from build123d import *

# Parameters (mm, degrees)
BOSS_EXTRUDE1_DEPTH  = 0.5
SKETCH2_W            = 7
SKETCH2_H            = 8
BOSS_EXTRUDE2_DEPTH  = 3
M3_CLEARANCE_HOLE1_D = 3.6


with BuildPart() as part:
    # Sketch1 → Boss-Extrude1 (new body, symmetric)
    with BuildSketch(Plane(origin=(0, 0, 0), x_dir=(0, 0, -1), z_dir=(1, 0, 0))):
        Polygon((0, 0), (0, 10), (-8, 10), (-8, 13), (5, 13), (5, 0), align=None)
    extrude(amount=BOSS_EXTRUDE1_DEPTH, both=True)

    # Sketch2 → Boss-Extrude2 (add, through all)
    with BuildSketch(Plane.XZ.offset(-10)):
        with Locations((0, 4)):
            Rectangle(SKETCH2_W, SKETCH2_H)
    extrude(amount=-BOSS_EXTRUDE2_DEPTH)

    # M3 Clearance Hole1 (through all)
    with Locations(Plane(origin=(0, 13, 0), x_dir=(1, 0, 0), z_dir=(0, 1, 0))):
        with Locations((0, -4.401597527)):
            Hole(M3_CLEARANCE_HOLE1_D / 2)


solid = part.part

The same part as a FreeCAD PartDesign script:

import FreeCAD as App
import Part
import Sketcher

V = App.Vector


def add_polygon(sketch, points):
    """Adds a closed chain of lines whose ends are joined by coincident constraints."""
    first, n = sketch.GeometryCount, len(points)
    for a, b in zip(points, points[1:] + points[:1]):
        sketch.addGeometry(Part.LineSegment(App.Vector(*a, 0), App.Vector(*b, 0)), False)
    for i in range(n):
        sketch.addConstraint(Sketcher.Constraint("Coincident", first + i, 2, first + (i + 1) % n, 1))

doc = App.newDocument("Part")
body = doc.addObject("PartDesign::Body", "Body")

# Sketch on YZ plane
sketch1 = body.newObject("Sketcher::SketchObject", "Sketch")
sketch1.AttachmentSupport = (doc.getObject("YZ_Plane"), [""])
sketch1.MapMode = "FlatFace"
add_polygon(sketch1, [(10, 0), (0, 0), (0, -5), (13, -5), (13, 8), (10, 8)])  # lines 0-5
sketch1.addConstraint(Sketcher.Constraint("Horizontal", 0))
sketch1.addConstraint(Sketcher.Constraint("Vertical", 1))
sketch1.addConstraint(Sketcher.Constraint("Horizontal", 2))
sketch1.addConstraint(Sketcher.Constraint("Vertical", 3))
sketch1.addConstraint(Sketcher.Constraint("Horizontal", 4))
sketch1.addConstraint(Sketcher.Constraint("Vertical", 5))
sketch1.addConstraint(Sketcher.Constraint("Coincident", 0, 2, -1, 1))
sketch1.addConstraint(Sketcher.Constraint("Equal", 2, 3))
sketch1.addConstraint(Sketcher.Constraint("DistanceX", 0, 2, 0, 1, 10.0))
sketch1.addConstraint(Sketcher.Constraint("DistanceX", 2, 1, 2, 2, 13.0))
sketch1.addConstraint(Sketcher.Constraint("DistanceY", 1, 2, 1, 1, 5.0))
pad1 = body.newObject("PartDesign::Pad", "Pad")
pad1.Profile = sketch1
pad1.Length = 1
pad1.Midplane = True

# Sketch on XZ plane
sketch2 = body.newObject("Sketcher::SketchObject", "Sketch001")
sketch2.AttachmentSupport = (doc.getObject("XZ_Plane"), [""])
sketch2.MapMode = "FlatFace"
sketch2.AttachmentOffset = App.Placement(V(0, 0, -10), App.Rotation())
add_polygon(sketch2, [(-4, 8), (-4, 0), (4, 0), (4, 8)])  # lines 0-3
sketch2.addConstraint(Sketcher.Constraint("Vertical", 0))
sketch2.addConstraint(Sketcher.Constraint("Horizontal", 1))
sketch2.addConstraint(Sketcher.Constraint("Vertical", 2))
sketch2.addConstraint(Sketcher.Constraint("Horizontal", 3))
sketch2.addConstraint(Sketcher.Constraint("Symmetric", 0, 2, 1, 2, -1, 1))
sketch2.addConstraint(Sketcher.Constraint("DistanceX", 1, 1, 1, 2, 7.0))
sketch2.addConstraint(Sketcher.Constraint("DistanceY", 0, 2, 0, 1, 8.0))
pad2 = body.newObject("PartDesign::Pad", "Pad001")
pad2.Profile = sketch2
pad2.Type = "UpToLast"
pad2.Reversed = True

# Sketch on XZ plane
sketch3 = body.newObject("Sketcher::SketchObject", "Sketch002")
sketch3.AttachmentSupport = (doc.getObject("XZ_Plane"), [""])
sketch3.MapMode = "FlatFace"
sketch3.AttachmentOffset = App.Placement(V(0, 0, -13), App.Rotation())
sketch3.addGeometry(Part.Circle(V(0, 4.4, 0), V(0, 0, 1), 1.8), False)
sketch3.addConstraint(Sketcher.Constraint("PointOnObject", 0, 3, -2))
sketch3.addConstraint(Sketcher.Constraint("Diameter", 0, 3.6))
sketch3.addConstraint(Sketcher.Constraint("DistanceY", -1, 1, 0, 3, 4.401598))
doc.recompute()
hole = body.newObject("PartDesign::Hole", "Hole")
hole.Profile = sketch3
hole.ThreadType = "None"
hole.Diameter = 3.6
hole.DepthType = "ThroughAll"
hole.Reversed = True

doc.recompute()
